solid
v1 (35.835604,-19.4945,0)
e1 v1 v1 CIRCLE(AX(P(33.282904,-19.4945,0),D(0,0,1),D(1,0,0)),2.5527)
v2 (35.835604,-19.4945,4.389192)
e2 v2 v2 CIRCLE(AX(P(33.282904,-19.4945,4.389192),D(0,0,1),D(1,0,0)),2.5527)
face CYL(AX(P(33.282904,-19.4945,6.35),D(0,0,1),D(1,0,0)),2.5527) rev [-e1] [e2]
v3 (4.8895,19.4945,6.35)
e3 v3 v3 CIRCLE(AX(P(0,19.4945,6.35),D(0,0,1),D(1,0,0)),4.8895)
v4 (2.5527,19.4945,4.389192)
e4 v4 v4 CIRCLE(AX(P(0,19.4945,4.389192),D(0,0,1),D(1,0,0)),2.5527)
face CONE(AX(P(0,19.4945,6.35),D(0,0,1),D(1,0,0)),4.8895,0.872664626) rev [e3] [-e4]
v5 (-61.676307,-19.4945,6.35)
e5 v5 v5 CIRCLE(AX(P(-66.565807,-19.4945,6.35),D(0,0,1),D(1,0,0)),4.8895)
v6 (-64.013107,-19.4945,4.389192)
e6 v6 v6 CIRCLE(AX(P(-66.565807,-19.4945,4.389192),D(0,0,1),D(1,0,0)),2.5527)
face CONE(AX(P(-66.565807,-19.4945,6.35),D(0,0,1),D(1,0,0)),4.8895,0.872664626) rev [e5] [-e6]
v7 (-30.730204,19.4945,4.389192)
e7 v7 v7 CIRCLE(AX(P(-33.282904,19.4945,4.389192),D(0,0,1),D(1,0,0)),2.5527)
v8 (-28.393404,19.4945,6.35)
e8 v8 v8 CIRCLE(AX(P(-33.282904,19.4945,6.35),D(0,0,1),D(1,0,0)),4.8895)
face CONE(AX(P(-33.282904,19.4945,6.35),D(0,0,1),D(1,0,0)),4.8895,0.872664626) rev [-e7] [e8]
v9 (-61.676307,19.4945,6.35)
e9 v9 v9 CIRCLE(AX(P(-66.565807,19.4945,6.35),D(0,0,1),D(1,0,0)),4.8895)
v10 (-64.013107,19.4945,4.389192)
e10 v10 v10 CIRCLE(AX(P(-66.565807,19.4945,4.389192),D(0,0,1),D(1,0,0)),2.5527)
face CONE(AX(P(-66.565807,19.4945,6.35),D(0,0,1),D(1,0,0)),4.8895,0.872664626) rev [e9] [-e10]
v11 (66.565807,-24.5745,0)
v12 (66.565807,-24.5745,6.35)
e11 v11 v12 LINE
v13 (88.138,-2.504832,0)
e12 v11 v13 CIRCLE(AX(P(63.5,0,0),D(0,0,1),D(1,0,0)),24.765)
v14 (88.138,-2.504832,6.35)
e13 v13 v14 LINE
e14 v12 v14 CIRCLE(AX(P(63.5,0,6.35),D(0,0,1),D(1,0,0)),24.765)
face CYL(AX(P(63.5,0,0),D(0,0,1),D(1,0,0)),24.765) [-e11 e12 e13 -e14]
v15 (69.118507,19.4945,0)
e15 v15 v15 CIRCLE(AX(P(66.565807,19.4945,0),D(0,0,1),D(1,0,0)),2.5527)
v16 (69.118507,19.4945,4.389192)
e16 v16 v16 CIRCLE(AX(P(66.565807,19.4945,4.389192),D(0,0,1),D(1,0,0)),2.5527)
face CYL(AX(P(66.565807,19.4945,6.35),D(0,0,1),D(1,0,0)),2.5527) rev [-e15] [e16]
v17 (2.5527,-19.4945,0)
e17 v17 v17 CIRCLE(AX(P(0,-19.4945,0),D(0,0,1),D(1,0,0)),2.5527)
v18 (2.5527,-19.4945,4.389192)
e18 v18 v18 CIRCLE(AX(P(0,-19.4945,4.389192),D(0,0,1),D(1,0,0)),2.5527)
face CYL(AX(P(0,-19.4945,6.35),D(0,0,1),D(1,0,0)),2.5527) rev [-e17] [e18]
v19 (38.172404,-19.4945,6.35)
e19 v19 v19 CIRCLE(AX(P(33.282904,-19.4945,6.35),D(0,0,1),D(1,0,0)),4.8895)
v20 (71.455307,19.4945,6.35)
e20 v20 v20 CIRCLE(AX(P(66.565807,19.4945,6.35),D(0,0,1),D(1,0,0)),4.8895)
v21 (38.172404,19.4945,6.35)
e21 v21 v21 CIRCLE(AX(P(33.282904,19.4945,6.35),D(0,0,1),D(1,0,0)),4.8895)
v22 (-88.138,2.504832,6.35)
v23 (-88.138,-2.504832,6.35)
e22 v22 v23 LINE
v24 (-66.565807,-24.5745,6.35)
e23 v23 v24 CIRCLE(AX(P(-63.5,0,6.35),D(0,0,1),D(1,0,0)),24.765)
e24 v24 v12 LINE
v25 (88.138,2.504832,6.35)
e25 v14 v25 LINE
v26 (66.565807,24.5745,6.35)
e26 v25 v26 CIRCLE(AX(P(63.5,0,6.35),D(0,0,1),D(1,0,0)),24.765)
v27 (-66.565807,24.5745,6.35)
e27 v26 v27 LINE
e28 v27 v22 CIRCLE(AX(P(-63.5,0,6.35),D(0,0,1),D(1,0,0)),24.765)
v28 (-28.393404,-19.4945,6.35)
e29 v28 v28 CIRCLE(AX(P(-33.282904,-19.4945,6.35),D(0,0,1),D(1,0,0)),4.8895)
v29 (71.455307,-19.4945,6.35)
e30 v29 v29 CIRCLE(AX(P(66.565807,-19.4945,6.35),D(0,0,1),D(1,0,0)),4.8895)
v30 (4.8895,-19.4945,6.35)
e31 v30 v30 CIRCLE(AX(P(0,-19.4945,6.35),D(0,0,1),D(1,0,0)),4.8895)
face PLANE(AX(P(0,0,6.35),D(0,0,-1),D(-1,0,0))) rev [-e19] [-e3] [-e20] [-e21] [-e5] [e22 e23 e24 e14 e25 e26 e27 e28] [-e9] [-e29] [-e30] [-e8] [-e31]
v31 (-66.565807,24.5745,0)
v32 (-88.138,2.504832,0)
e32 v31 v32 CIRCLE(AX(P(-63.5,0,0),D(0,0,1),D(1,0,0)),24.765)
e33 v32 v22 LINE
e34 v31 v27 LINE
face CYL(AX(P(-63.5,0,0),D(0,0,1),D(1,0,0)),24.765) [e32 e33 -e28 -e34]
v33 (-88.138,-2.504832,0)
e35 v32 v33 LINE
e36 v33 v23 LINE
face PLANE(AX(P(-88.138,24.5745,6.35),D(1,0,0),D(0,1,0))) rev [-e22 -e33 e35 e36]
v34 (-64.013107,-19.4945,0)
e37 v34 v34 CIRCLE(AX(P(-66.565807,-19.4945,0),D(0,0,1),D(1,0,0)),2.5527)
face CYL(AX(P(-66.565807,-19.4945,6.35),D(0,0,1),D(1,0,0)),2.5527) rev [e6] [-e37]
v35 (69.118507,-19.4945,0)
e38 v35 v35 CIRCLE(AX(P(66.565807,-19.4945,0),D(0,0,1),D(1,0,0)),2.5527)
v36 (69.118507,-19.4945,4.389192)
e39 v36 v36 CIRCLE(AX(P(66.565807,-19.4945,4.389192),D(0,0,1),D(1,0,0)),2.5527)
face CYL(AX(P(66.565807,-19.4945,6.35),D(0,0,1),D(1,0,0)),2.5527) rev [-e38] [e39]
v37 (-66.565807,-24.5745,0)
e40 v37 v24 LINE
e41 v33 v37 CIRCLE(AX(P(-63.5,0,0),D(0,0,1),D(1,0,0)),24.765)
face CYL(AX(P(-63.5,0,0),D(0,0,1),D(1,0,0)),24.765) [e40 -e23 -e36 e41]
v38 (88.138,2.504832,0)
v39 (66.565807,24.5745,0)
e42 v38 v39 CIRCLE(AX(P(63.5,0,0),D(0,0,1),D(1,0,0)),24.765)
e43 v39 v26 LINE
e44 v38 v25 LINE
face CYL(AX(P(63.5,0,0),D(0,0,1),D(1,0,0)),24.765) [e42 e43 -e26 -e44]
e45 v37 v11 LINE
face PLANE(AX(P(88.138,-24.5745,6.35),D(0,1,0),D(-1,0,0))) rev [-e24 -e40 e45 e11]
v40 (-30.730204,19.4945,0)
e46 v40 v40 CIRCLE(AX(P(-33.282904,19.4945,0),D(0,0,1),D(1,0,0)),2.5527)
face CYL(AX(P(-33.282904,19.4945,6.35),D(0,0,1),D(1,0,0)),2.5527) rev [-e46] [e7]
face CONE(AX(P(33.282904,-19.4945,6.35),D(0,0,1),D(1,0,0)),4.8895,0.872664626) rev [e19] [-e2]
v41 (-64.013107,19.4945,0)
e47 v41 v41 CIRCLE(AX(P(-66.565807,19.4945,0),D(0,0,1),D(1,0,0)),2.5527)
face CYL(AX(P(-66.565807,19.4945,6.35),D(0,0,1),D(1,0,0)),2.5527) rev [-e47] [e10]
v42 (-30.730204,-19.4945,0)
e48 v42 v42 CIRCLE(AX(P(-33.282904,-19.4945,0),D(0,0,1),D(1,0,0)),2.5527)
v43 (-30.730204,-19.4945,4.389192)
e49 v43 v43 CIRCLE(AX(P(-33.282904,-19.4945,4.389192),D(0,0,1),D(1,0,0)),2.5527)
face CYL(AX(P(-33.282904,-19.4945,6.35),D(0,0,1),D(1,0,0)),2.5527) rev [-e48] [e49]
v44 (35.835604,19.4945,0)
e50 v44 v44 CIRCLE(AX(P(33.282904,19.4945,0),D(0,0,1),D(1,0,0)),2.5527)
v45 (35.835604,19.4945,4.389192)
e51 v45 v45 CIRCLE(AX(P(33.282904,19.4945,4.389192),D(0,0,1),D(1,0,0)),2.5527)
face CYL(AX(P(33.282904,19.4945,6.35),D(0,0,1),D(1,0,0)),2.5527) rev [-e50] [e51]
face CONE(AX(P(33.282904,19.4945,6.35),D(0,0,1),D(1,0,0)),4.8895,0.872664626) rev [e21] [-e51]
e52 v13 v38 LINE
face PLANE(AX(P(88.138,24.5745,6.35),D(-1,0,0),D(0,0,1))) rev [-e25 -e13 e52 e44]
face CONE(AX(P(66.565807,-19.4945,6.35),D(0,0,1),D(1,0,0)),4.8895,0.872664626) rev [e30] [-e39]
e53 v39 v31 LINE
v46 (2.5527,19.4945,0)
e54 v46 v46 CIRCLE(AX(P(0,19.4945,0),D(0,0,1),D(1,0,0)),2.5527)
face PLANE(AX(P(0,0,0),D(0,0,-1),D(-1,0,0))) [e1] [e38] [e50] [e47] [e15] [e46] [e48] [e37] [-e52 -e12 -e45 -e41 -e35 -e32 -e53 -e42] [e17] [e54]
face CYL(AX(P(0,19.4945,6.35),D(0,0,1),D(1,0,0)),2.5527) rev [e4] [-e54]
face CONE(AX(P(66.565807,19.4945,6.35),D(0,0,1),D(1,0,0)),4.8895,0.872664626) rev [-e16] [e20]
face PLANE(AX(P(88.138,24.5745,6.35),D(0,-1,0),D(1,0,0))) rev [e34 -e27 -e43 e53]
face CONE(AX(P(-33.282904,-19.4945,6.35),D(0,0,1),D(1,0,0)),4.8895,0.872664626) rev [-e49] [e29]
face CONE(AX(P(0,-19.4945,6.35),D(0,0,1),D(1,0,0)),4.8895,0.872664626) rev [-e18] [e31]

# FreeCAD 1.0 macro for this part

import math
import FreeCAD as App
import Part
import Sketcher
Q = App.Units.Quantity

doc = App.newDocument("Part")
body = doc.addObject("PartDesign::Body", "Body")

# Sketch on XY plane
sketch1 = body.newObject("Sketcher::SketchObject", "Sketch")
sketch1.AttachmentSupport = (doc.getObject("XY_Plane"), [""])
sketch1.MapMode = "FlatFace"
sketch1.addGeometry([
    Part.LineSegment(App.Vector(-88, 25, 0), App.Vector(-88, -25, 0)),
    Part.LineSegment(App.Vector(-88, -25, 0), App.Vector(88, -25, 0)),
    Part.LineSegment(App.Vector(88, -25, 0), App.Vector(88, 25, 0)),
    Part.LineSegment(App.Vector(88, 25, 0), App.Vector(-88, 25, 0)),
], False)
sketch1.addConstraint([
    Sketcher.Constraint("Coincident", 0, 2, 1, 1),
    Sketcher.Constraint("Coincident", 1, 2, 2, 1),
    Sketcher.Constraint("Coincident", 2, 2, 3, 1),
    Sketcher.Constraint("Coincident", 3, 2, 0, 1),
    Sketcher.Constraint("Vertical", 0),
    Sketcher.Constraint("Horizontal", 1),
    Sketcher.Constraint("Vertical", 2),
    Sketcher.Constraint("Horizontal", 3),
    Sketcher.Constraint("Symmetric", 0, 2, 2, 2, -1, 1),
    Sketcher.Constraint("DistanceX", 1, 1, 1, 2, Q("6.94 in")),
    Sketcher.Constraint("DistanceY", 0, 2, 0, 1, Q("1.935 in")),
])
pad1 = body.newObject("PartDesign::Pad", "Pad")
pad1.Profile = sketch1
pad1.Length = Q("0.25 in")

# Sketch on XY plane
sketch2 = body.newObject("Sketcher::SketchObject", "Sketch001")
sketch2.AttachmentSupport = (doc.getObject("XY_Plane"), [""])
sketch2.MapMode = "FlatFace"
sketch2.AttachmentOffset = App.Placement(App.Vector(0, 0, 0.25 * 25.4), App.Rotation())
sketch2.addGeometry([
    Part.ArcOfCircle(Part.Circle(App.Vector(-64, 0, 0), App.Vector(0, 0, 1), 25), math.radians(97), math.radians(174)),  # 0
    Part.LineSegment(App.Vector(-67, 25, 0), App.Vector(-88, 25, 0)),  # 1
    Part.LineSegment(App.Vector(-88, 25, 0), App.Vector(-88, 3, 0)),  # 2
    Part.ArcOfCircle(Part.Circle(App.Vector(-64, 0, 0), App.Vector(0, 0, 1), 25), math.radians(-174), math.radians(-97)),  # 3
    Part.LineSegment(App.Vector(-88, -3, 0), App.Vector(-88, -25, 0)),  # 4
    Part.LineSegment(App.Vector(-88, -25, 0), App.Vector(-67, -25, 0)),  # 5
    Part.LineSegment(App.Vector(88, -25, 0), App.Vector(88, -3, 0)),  # 6
    Part.ArcOfCircle(Part.Circle(App.Vector(64, 0, 0), App.Vector(0, 0, 1), 25), math.radians(-83), math.radians(-6)),  # 7
    Part.LineSegment(App.Vector(67, -25, 0), App.Vector(88, -25, 0)),  # 8
    Part.LineSegment(App.Vector(88, 25, 0), App.Vector(67, 25, 0)),  # 9
    Part.ArcOfCircle(Part.Circle(App.Vector(64, 0, 0), App.Vector(0, 0, 1), 25), math.radians(6), math.radians(83)),  # 10
    Part.LineSegment(App.Vector(88, 3, 0), App.Vector(88, 25, 0)),  # 11
], False)
sketch2.addConstraint([
    Sketcher.Constraint("Coincident", 0, 1, 1, 1),
    Sketcher.Constraint("Coincident", 1, 2, 2, 1),
    Sketcher.Constraint("Coincident", 2, 2, 0, 2),
    Sketcher.Constraint("Coincident", 3, 1, 4, 1),
    Sketcher.Constraint("Coincident", 4, 2, 5, 1),
    Sketcher.Constraint("Coincident", 5, 2, 3, 2),
    Sketcher.Constraint("Coincident", 6, 2, 7, 2),
    Sketcher.Constraint("Coincident", 7, 1, 8, 1),
    Sketcher.Constraint("Coincident", 8, 2, 6, 1),
    Sketcher.Constraint("Coincident", 9, 2, 10, 2),
    Sketcher.Constraint("Coincident", 10, 1, 11, 1),
    Sketcher.Constraint("Coincident", 11, 2, 9, 1),
    Sketcher.Constraint("Horizontal", 1),
    Sketcher.Constraint("Vertical", 2),
    Sketcher.Constraint("Vertical", 4),
    Sketcher.Constraint("Horizontal", 5),
    Sketcher.Constraint("Vertical", 6),
    Sketcher.Constraint("Horizontal", 8),
    Sketcher.Constraint("Horizontal", 9),
    Sketcher.Constraint("Vertical", 11),
    Sketcher.Constraint("Coincident", 3, 3, 0, 3),
    Sketcher.Constraint("Coincident", 10, 3, 7, 3),
    Sketcher.Constraint("Equal", 0, 3),
    Sketcher.Constraint("Equal", 3, 7),
    Sketcher.Constraint("Equal", 7, 10),
    Sketcher.Constraint("Symmetric", 0, 3, 7, 3, -1, 1),
    Sketcher.Constraint("Symmetric", 1, 2, 8, 2, -1, 1),
    Sketcher.Constraint("Symmetric", 4, 2, 11, 2, -1, 1),
    Sketcher.Constraint("Symmetric", 3, 1, 6, 2, -2),
    Sketcher.Constraint("Horizontal", 5, 2, 7, 1),
    Sketcher.Constraint("Radius", 0, Q("0.975 in")),
    Sketcher.Constraint("DistanceX", 0, 3, 7, 3, Q("5 in")),
    Sketcher.Constraint("DistanceX", 1, 2, -1, 1, Q("3.47 in")),
    Sketcher.Constraint("DistanceY", 4, 2, 1, 2, Q("1.935 in")),
])
pocket1 = body.newObject("PartDesign::Pocket", "Pocket")
pocket1.Profile = sketch2
pocket1.Type = "ThroughAll"

# Sketch on XY plane
sketch3 = body.newObject("Sketcher::SketchObject", "Sketch002")
sketch3.AttachmentSupport = (doc.getObject("XY_Plane"), [""])
sketch3.MapMode = "FlatFace"
sketch3.AttachmentOffset = App.Placement(App.Vector(0, 0, 0.25 * 25.4), App.Rotation())
sketch3.addGeometry([
    Part.Circle(App.Vector(-66.6, 19.5, 0), App.Vector(0, 0, 1), 2.6),  # 0
    Part.Circle(App.Vector(-33.3, 19.5, 0), App.Vector(0, 0, 1), 2.6),  # 1
    Part.Circle(App.Vector(0, 19.5, 0), App.Vector(0, 0, 1), 2.6),  # 2
    Part.Circle(App.Vector(33.3, 19.5, 0), App.Vector(0, 0, 1), 2.6),  # 3
    Part.Circle(App.Vector(66.6, 19.5, 0), App.Vector(0, 0, 1), 2.6),  # 4
    Part.Circle(App.Vector(66.6, -19.5, 0), App.Vector(0, 0, 1), 2.6),  # 5
    Part.Circle(App.Vector(33.3, -19.5, 0), App.Vector(0, 0, 1), 2.6),  # 6
    Part.Circle(App.Vector(0, -19.5, 0), App.Vector(0, 0, 1), 2.6),  # 7
    Part.Circle(App.Vector(-33.3, -19.5, 0), App.Vector(0, 0, 1), 2.6),  # 8
    Part.Circle(App.Vector(-66.6, -19.5, 0), App.Vector(0, 0, 1), 2.6),  # 9
], False)
sketch3.addConstraint([
    Sketcher.Constraint("Equal", 0, 1),
    Sketcher.Constraint("Equal", 1, 2),
    Sketcher.Constraint("Equal", 2, 3),
    Sketcher.Constraint("Equal", 3, 4),
    Sketcher.Constraint("Equal", 4, 5),
    Sketcher.Constraint("Equal", 5, 6),
    Sketcher.Constraint("Equal", 6, 7),
    Sketcher.Constraint("Equal", 7, 8),
    Sketcher.Constraint("Equal", 8, 9),
    Sketcher.Constraint("Symmetric", 0, 3, 5, 3, -1, 1),
    Sketcher.Constraint("Symmetric", 1, 3, 6, 3, -1, 1),
    Sketcher.Constraint("Symmetric", 2, 3, 7, 3, -1, 1),
    Sketcher.Constraint("Symmetric", 3, 3, 8, 3, -1, 1),
    Sketcher.Constraint("Symmetric", 4, 3, 9, 3, -1, 1),
    Sketcher.Constraint("Symmetric", 1, 3, 3, 3, -2),
    Sketcher.Constraint("Symmetric", 0, 3, 4, 3, -2),
    Sketcher.Constraint("PointOnObject", 2, 3, -2),
    Sketcher.Constraint("Horizontal", 0, 3, 1, 3),
    Sketcher.Constraint("Horizontal", 1, 3, 2, 3),
    Sketcher.Constraint("Diameter", 0, Q("0.201 in")),
    Sketcher.Constraint("DistanceY", 5, 3, 4, 3, Q("1.535 in")),
    Sketcher.Constraint("DistanceX", 0, 3, 3, 3, 99.848711),
    Sketcher.Constraint("DistanceX", 0, 3, -1, 1, 66.565807),
])
doc.recompute()
hole = body.newObject("PartDesign::Hole", "Hole")
hole.Profile = sketch3
hole.ThreadType = "None"
hole.Diameter = Q("0.201 in")
hole.DepthType = "ThroughAll"
hole.HoleCutType = "Countersink"
hole.HoleCutDiameter = Q("0.385 in")
hole.HoleCutCountersinkAngle = 100

doc.recompute()
